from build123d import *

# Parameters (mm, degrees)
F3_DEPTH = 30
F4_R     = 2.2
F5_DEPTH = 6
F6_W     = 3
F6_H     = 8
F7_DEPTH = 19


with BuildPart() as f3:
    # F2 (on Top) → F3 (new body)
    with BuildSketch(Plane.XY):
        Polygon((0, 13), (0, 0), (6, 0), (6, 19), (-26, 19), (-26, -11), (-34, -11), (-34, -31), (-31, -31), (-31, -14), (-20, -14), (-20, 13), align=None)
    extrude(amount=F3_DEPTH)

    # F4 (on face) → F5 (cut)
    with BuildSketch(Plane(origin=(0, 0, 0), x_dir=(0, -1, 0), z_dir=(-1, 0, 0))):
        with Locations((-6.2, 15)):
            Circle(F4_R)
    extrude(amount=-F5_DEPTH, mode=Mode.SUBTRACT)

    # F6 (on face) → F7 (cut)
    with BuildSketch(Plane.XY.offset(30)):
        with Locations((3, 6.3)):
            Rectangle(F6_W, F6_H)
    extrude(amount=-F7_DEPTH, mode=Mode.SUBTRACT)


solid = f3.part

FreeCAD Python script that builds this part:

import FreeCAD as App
import Part
import Sketcher

V = App.Vector
Q = App.Units.Quantity


def add_polygon(sketch, points):
    """Adds a closed chain of lines whose ends are joined by coincident constraints."""
    first, n = sketch.GeometryCount, len(points)
    for a, b in zip(points, points[1:] + points[:1]):
        sketch.addGeometry(Part.LineSegment(App.Vector(*a, 0), App.Vector(*b, 0)), False)
    for i in range(n):
        sketch.addConstraint(Sketcher.Constraint("Coincident", first + i, 2, first + (i + 1) % n, 1))

doc = App.newDocument("Part")
body = doc.addObject("PartDesign::Body", "Body")

sketch1 = doc.addObject("Sketcher::SketchObject", "Sketch")
body.addObject(sketch1)
sketch1.AttachmentSupport = (doc.XY_Plane, [""])
sketch1.MapMode = "FlatFace"
add_polygon(sketch1, [(0, 13), (0, 0), (6, 0), (6, 19), (-26, 19), (-26, -11), (-34, -11), (-34, -31), (-31, -31), (-31, -14), (-20, -14), (-20, 13)])
sketch1.addConstraint(Sketcher.Constraint("Vertical", 0))
sketch1.addConstraint(Sketcher.Constraint("Horizontal", 1))
sketch1.addConstraint(Sketcher.Constraint("Vertical", 2))
sketch1.addConstraint(Sketcher.Constraint("Horizontal", 3))
sketch1.addConstraint(Sketcher.Constraint("Vertical", 4))
sketch1.addConstraint(Sketcher.Constraint("Horizontal", 5))
sketch1.addConstraint(Sketcher.Constraint("Vertical", 6))
sketch1.addConstraint(Sketcher.Constraint("Horizontal", 7))
sketch1.addConstraint(Sketcher.Constraint("Vertical", 8))
sketch1.addConstraint(Sketcher.Constraint("Horizontal", 9))
sketch1.addConstraint(Sketcher.Constraint("Vertical", 10))
sketch1.addConstraint(Sketcher.Constraint("Horizontal", 11))
sketch1.addConstraint(Sketcher.Constraint("Coincident", 0, 2, -1, 1))
sketch1.addConstraint(Sketcher.Constraint("Equal", 11, 6))
sketch1.addConstraint(Sketcher.Constraint("DistanceX", 1, 1, 1, 2, Q("6 mm")))
sketch1.addConstraint(Sketcher.Constraint("DistanceX", 3, 2, 3, 1, Q("32 mm")))
sketch1.addConstraint(Sketcher.Constraint("DistanceX", 5, 2, 5, 1, Q("8 mm")))
sketch1.addConstraint(Sketcher.Constraint("DistanceX", 7, 1, 7, 2, Q("3 mm")))
sketch1.addConstraint(Sketcher.Constraint("DistanceX", 9, 1, 9, 2, Q("11 mm")))
sketch1.addConstraint(Sketcher.Constraint("DistanceY", 0, 2, 0, 1, Q("13 mm")))
sketch1.addConstraint(Sketcher.Constraint("DistanceY", 2, 1, 2, 2, Q("19 mm")))
sketch1.addConstraint(Sketcher.Constraint("DistanceY", 4, 2, 4, 1, Q("30 mm")))
sketch1.addConstraint(Sketcher.Constraint("DistanceY", 8, 1, 8, 2, Q("17 mm")))
pad1 = doc.addObject("PartDesign::Pad", "Pad")
body.addObject(pad1)
pad1.Profile = sketch1
pad1.Length = 30

sketch2 = doc.addObject("Sketcher::SketchObject", "Sketch001")
body.addObject(sketch2)
sketch2.AttachmentSupport = (doc.YZ_Plane, [""])
sketch2.MapMode = "FlatFace"
sketch2.addGeometry(Part.Circle(V(6.2, 15, 0), V(0, 0, 1), 2.2), False)
sketch2.addConstraint(Sketcher.Constraint("Diameter", 0, Q("4.4 mm")))
sketch2.addConstraint(Sketcher.Constraint("DistanceY", -1, 1, 0, 3, Q("15 mm")))
sketch2.addConstraint(Sketcher.Constraint("DistanceX", -1, 1, 0, 3, Q("6.2 mm")))
pocket1 = doc.addObject("PartDesign::Pocket", "Pocket")
body.addObject(pocket1)
pocket1.Profile = sketch2
pocket1.Length = 6
pocket1.Reversed = True

sketch3 = doc.addObject("Sketcher::SketchObject", "Sketch002")
body.addObject(sketch3)
sketch3.AttachmentSupport = (doc.XY_Plane, [""])
sketch3.MapMode = "FlatFace"
sketch3.AttachmentOffset = App.Placement(V(0, 0, 30), App.Rotation())
add_polygon(sketch3, [(1.5, 10.3), (1.5, 2.3), (4.5, 2.3), (4.5, 10.3)])
sketch3.addConstraint(Sketcher.Constraint("Vertical", 0))
sketch3.addConstraint(Sketcher.Constraint("Horizontal", 1))
sketch3.addConstraint(Sketcher.Constraint("Vertical", 2))
sketch3.addConstraint(Sketcher.Constraint("Horizontal", 3))
sketch3.addConstraint(Sketcher.Constraint("DistanceX", 1, 1, 1, 2, Q("3 mm")))
sketch3.addConstraint(Sketcher.Constraint("DistanceY", 0, 2, 0, 1, Q("8 mm")))
sketch3.addConstraint(Sketcher.Constraint("DistanceX", -1, 1, 0, 2, Q("1.5 mm")))
sketch3.addConstraint(Sketcher.Constraint("DistanceY", -1, 1, 0, 2, Q("2.3 mm")))
pocket2 = doc.addObject("PartDesign::Pocket", "Pocket001")
body.addObject(pocket2)
pocket2.Profile = sketch3
pocket2.Length = 19

doc.recompute()
